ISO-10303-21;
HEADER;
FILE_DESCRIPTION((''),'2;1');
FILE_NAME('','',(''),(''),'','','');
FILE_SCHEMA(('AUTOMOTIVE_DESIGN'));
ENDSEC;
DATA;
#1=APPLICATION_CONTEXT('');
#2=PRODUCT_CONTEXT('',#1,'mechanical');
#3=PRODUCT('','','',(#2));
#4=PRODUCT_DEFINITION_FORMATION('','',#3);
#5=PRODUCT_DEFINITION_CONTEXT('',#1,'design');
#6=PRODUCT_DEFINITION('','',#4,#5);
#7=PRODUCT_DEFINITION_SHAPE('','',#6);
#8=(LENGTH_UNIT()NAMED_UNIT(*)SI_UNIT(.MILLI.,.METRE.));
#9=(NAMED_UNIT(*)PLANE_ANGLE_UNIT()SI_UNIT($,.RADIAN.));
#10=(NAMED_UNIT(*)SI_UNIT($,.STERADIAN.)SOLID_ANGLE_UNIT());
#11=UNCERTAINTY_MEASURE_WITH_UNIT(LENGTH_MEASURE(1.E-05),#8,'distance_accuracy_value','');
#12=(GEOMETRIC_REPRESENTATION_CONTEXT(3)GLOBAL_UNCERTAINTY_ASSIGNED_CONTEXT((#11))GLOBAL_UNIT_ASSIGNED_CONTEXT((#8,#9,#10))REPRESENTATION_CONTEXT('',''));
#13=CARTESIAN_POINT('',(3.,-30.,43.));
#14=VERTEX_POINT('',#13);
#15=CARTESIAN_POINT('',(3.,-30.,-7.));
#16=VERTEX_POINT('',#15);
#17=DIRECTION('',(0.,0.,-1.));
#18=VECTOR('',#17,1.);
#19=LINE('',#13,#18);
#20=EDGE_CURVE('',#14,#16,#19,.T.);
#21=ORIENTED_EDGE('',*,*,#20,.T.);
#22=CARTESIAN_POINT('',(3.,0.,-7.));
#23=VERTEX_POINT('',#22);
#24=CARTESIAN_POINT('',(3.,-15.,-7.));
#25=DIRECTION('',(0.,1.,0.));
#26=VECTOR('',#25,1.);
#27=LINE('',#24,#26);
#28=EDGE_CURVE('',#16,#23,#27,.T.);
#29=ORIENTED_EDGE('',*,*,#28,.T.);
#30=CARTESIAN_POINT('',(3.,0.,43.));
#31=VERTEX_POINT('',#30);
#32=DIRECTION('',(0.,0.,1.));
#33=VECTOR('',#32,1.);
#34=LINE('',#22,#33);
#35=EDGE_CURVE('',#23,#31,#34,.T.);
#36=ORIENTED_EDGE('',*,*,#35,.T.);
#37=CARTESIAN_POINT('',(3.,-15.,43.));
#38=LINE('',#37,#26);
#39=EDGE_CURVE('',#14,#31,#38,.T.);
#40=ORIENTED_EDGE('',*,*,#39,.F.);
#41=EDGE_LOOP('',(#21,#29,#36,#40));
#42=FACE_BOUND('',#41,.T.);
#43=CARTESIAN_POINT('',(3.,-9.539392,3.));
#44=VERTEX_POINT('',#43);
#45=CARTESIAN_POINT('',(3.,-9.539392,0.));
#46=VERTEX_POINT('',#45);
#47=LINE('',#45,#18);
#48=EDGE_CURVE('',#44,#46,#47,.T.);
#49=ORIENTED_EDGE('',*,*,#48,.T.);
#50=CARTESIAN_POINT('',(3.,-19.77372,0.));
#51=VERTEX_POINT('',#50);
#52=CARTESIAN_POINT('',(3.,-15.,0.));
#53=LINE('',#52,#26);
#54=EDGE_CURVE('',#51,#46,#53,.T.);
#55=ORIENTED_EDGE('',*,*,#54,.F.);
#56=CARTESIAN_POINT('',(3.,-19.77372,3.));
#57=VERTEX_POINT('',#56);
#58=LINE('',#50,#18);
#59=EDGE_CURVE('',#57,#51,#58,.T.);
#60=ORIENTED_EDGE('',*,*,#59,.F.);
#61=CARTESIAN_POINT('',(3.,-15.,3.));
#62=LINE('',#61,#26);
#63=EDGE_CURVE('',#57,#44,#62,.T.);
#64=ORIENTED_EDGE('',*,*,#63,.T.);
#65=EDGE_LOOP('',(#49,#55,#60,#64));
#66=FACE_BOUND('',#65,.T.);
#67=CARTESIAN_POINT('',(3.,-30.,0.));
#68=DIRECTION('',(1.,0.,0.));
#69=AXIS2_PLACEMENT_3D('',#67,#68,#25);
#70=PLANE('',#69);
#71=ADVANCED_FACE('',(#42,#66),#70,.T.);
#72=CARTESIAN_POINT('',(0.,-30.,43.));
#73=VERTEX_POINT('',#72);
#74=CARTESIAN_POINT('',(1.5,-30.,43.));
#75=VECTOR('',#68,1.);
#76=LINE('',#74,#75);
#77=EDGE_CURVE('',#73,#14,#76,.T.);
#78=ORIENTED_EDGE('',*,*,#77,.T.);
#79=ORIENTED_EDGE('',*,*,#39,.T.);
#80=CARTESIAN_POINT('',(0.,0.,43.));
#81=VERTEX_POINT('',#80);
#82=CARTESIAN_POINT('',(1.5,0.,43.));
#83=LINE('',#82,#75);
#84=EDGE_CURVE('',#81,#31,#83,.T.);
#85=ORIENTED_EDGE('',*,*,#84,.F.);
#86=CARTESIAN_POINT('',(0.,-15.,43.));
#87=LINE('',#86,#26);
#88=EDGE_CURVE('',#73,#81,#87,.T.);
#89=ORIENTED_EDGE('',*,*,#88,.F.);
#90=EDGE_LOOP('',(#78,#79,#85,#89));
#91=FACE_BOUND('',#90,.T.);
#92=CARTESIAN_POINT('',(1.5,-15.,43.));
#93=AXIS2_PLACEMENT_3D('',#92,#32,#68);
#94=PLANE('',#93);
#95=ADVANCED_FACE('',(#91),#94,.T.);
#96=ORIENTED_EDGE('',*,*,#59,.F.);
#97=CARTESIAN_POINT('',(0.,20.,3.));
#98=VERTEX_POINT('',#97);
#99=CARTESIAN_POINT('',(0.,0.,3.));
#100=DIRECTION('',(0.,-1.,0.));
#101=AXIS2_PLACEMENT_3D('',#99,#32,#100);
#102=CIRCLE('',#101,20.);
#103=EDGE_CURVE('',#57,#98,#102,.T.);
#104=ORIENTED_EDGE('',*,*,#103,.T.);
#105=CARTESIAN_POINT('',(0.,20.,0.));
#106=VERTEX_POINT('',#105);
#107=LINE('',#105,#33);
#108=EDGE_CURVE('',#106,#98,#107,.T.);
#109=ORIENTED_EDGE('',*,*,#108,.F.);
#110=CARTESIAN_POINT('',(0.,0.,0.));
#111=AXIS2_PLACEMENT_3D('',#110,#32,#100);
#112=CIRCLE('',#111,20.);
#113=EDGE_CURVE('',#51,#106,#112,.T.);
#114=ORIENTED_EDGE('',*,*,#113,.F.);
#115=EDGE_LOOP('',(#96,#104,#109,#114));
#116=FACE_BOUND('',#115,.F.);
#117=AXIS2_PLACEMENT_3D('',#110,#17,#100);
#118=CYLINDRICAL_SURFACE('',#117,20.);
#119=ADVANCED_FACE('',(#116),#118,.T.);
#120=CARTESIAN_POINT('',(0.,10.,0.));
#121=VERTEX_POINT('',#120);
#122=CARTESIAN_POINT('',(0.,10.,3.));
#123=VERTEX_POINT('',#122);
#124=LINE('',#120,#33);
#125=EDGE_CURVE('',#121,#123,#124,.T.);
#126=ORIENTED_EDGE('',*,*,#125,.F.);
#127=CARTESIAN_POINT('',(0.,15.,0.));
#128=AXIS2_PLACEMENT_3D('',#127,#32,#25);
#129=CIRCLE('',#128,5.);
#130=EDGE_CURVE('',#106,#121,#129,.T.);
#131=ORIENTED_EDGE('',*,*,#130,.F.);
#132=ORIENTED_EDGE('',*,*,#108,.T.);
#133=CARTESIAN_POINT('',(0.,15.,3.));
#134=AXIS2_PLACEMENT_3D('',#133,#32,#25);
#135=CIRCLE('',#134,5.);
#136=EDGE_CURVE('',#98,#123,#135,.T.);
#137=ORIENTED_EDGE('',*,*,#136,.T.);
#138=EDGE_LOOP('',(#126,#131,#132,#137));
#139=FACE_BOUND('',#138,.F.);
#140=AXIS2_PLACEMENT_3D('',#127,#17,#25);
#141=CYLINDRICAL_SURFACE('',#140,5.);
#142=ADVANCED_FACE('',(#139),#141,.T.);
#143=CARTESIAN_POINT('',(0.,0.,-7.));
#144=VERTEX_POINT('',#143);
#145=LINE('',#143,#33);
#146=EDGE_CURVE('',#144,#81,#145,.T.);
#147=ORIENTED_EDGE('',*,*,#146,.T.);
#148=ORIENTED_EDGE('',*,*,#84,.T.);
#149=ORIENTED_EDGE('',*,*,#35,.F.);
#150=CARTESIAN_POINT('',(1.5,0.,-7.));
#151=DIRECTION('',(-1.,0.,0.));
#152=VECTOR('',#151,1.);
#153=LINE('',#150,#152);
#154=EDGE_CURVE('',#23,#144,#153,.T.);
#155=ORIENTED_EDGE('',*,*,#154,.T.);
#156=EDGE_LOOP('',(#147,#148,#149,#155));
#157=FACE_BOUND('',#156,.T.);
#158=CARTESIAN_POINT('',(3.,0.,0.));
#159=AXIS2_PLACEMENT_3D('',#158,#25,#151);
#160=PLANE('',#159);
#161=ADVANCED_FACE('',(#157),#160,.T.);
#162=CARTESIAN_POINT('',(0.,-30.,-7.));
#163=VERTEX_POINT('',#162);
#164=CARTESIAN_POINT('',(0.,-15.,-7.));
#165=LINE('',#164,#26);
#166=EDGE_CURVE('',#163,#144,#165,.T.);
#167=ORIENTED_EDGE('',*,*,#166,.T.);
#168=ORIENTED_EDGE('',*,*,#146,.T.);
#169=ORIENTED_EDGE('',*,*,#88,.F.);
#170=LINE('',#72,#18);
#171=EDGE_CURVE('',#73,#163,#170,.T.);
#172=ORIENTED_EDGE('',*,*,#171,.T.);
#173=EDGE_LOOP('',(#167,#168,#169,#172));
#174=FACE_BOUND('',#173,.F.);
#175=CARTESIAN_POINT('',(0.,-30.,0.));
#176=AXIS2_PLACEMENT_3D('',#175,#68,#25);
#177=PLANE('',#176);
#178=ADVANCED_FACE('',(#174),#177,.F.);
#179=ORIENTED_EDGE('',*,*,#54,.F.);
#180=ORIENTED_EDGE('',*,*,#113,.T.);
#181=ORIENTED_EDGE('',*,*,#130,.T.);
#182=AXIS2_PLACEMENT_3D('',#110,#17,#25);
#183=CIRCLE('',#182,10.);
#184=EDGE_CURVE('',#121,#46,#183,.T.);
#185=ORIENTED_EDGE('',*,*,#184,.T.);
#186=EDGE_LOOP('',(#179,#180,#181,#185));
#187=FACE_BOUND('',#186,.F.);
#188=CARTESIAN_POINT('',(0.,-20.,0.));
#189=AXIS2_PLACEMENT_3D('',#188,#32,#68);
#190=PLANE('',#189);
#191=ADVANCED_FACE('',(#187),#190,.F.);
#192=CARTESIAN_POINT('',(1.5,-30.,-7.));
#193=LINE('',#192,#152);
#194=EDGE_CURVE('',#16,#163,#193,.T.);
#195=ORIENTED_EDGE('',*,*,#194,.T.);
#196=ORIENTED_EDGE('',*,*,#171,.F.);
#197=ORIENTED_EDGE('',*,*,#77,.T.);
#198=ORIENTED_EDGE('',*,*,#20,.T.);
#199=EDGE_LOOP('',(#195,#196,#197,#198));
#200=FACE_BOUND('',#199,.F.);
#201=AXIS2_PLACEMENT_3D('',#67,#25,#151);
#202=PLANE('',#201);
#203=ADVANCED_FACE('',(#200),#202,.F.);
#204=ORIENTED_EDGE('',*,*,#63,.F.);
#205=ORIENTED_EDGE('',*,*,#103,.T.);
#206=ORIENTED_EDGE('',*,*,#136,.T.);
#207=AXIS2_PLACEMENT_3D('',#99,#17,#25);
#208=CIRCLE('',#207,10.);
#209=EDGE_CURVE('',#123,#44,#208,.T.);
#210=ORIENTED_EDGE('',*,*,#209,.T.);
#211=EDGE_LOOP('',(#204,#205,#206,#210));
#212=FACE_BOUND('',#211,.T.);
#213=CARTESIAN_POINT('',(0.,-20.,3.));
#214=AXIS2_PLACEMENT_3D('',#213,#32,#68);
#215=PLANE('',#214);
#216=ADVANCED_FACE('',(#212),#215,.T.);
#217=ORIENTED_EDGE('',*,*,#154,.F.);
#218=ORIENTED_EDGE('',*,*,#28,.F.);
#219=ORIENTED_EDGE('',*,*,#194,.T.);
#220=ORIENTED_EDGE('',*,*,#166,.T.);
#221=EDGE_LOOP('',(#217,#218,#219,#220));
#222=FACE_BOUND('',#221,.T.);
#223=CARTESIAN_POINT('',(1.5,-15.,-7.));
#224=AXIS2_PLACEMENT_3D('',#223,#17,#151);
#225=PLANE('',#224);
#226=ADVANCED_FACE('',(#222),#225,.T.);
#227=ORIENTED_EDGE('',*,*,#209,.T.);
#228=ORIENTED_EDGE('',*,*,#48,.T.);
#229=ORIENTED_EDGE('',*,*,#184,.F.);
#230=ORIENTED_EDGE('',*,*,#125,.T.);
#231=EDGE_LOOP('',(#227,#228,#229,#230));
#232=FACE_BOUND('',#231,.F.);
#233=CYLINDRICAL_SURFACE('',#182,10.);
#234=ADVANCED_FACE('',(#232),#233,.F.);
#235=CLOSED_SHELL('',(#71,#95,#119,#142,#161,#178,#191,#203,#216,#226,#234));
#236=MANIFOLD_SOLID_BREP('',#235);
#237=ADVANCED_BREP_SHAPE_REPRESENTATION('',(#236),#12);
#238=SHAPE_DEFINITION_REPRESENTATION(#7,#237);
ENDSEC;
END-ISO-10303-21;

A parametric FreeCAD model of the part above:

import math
import FreeCAD as App
import Part
import Sketcher

V = App.Vector
Q = App.Units.Quantity


def add_polygon(sketch, points):
    """Adds a closed chain of lines whose ends are joined by coincident constraints."""
    first, n = sketch.GeometryCount, len(points)
    for a, b in zip(points, points[1:] + points[:1]):
        sketch.addGeometry(Part.LineSegment(App.Vector(*a, 0), App.Vector(*b, 0)), False)
    for i in range(n):
        sketch.addConstraint(Sketcher.Constraint("Coincident", first + i, 2, first + (i + 1) % n, 1))

doc = App.newDocument("Part")
body = doc.addObject("PartDesign::Body", "Body")

sketch1 = body.newObject("Sketcher::SketchObject", "Sketch")
sketch1.AttachmentSupport = (doc.getObject("XY_Plane"), [""])
sketch1.MapMode = "FlatFace"
sketch1.addGeometry([
    Part.ArcOfCircle(Part.Circle(V(0, 15, 0), V(0, 0, 1), 5), math.radians(90), math.radians(270)),
    Part.ArcOfCircle(Part.Circle(V(0, 0, 0), V(0, 0, 1), 10), math.radians(-90), math.radians(90)),
    Part.LineSegment(V(0, -10, 0), V(0, -20, 0)),
    Part.ArcOfCircle(Part.Circle(V(0, 0, 0), V(0, 0, 1), 20), math.radians(-90), math.radians(90)),
], False)
sketch1.addConstraint([
    Sketcher.Constraint("Tangent", 0, 2, 1, 2),
    Sketcher.Constraint("Coincident", 1, 1, 2, 1),
    Sketcher.Constraint("Coincident", 2, 2, 3, 1),
    Sketcher.Constraint("Tangent", 3, 2, 0, 1),
    Sketcher.Constraint("Vertical", 2),
    Sketcher.Constraint("Coincident", 1, 3, -1, 1),
    Sketcher.Constraint("Coincident", 3, 3, -1, 1),
    Sketcher.Constraint("PointOnObject", 0, 3, -2),
    Sketcher.Constraint("PointOnObject", 1, 1, -2),
    Sketcher.Constraint("Radius", 0, Q("5 mm")),
    Sketcher.Constraint("Radius", 1, Q("10 mm")),
])
pad1 = body.newObject("PartDesign::Pad", "Pad")
pad1.Profile = sketch1
pad1.Length = 3

sketch2 = body.newObject("Sketcher::SketchObject", "Sketch001")
sketch2.AttachmentSupport = (doc.getObject("YZ_Plane"), [""])
sketch2.MapMode = "FlatFace"
add_polygon(sketch2, [(-10, 0), (-20, 0), (-20, 3), (-10, 3)])
sketch2.addConstraint([
    Sketcher.Constraint("Horizontal", 0),
    Sketcher.Constraint("Vertical", 1),
    Sketcher.Constraint("Horizontal", 2),
    Sketcher.Constraint("Vertical", 3),
    Sketcher.Constraint("PointOnObject", 0, 2, -1),
    Sketcher.Constraint("DistanceX", 0, 2, 0, 1, Q("10 mm")),
    Sketcher.Constraint("DistanceY", 1, 1, 1, 2, Q("3 mm")),
    Sketcher.Constraint("DistanceX", 0, 2, -1, 1, Q("20 mm")),
])
pad2 = body.newObject("PartDesign::Pad", "Pad001")
pad2.Profile = sketch2
pad2.Length = 3

sketch3 = body.newObject("Sketcher::SketchObject", "Sketch002")
sketch3.AttachmentSupport = (doc.getObject("XZ_Plane"), [""])
sketch3.MapMode = "FlatFace"
sketch3.AttachmentOffset = App.Placement(V(0, 0, 20), App.Rotation())
add_polygon(sketch3, [(3, 0), (3, 3), (0, 3), (0, 0)])
sketch3.addConstraint([
    Sketcher.Constraint("Vertical", 0),
    Sketcher.Constraint("Horizontal", 1),
    Sketcher.Constraint("Vertical", 2),
    Sketcher.Constraint("Horizontal", 3),
    Sketcher.Constraint("Coincident", 2, 2, -1, 1),
    Sketcher.Constraint("Equal", 3, 0),
    Sketcher.Constraint("DistanceX", 1, 2, 1, 1, Q("3 mm")),
])
pad3 = body.newObject("PartDesign::Pad", "Pad002")
pad3.Profile = sketch3
pad3.Length = 20
pad3.Reversed = True

sketch4 = body.newObject("Sketcher::SketchObject", "Sketch003")
sketch4.AttachmentSupport = (doc.getObject("XZ_Plane"), [""])
sketch4.MapMode = "FlatFace"
sketch4.AttachmentOffset = App.Placement(V(0, 0, 20), App.Rotation())
add_polygon(sketch4, [(0, 3), (0, 0), (3, 0), (3, 3)])
sketch4.addConstraint([
    Sketcher.Constraint("Vertical", 0),
    Sketcher.Constraint("Horizontal", 1),
    Sketcher.Constraint("Vertical", 2),
    Sketcher.Constraint("Horizontal", 3),
    Sketcher.Constraint("Coincident", 0, 2, -1, 1),
    Sketcher.Constraint("Equal", 3, 0),
    Sketcher.Constraint("DistanceX", 1, 1, 1, 2, Q("3 mm")),
])
pad4 = body.newObject("PartDesign::Pad", "Pad003")
pad4.Profile = sketch4
pad4.Length = 10

sketch5 = body.newObject("Sketcher::SketchObject", "Sketch004")
sketch5.AttachmentSupport = (doc.getObject("XY_Plane"), [""])
sketch5.MapMode = "FlatFace"
sketch5.AttachmentOffset = App.Placement(V(0, 0, 3), App.Rotation())
add_polygon(sketch5, [(0, 0), (0, -30), (3, -30), (3, 0)])
sketch5.addConstraint([
    Sketcher.Constraint("Vertical", 0),
    Sketcher.Constraint("Horizontal", 1),
    Sketcher.Constraint("Vertical", 2),
    Sketcher.Constraint("Horizontal", 3),
    Sketcher.Constraint("Coincident", 3, 2, -1, 1),
    Sketcher.Constraint("DistanceX", 1, 1, 1, 2, Q("3 mm")),
    Sketcher.Constraint("DistanceY", 0, 2, 0, 1, Q("30 mm")),
])
pad5 = body.newObject("PartDesign::Pad", "Pad004")
pad5.Profile = sketch5
pad5.Length = 40

sketch6 = body.newObject("Sketcher::SketchObject", "Sketch005")
sketch6.AttachmentSupport = (doc.getObject("XY_Plane"), [""])
sketch6.MapMode = "FlatFace"
add_polygon(sketch6, [(3, 0), (3, -30), (0, -30), (0, 0)])
sketch6.addConstraint([
    Sketcher.Constraint("Vertical", 0),
    Sketcher.Constraint("Horizontal", 1),
    Sketcher.Constraint("Vertical", 2),
    Sketcher.Constraint("Horizontal", 3),
    Sketcher.Constraint("Coincident", 2, 2, -1, 1),
    Sketcher.Constraint("DistanceX", 1, 2, 1, 1, Q("3 mm")),
    Sketcher.Constraint("DistanceY", 0, 2, 0, 1, Q("30 mm")),
])
pad6 = body.newObject("PartDesign::Pad", "Pad005")
pad6.Profile = sketch6
pad6.Length = 7
pad6.Reversed = True

doc.recompute()
